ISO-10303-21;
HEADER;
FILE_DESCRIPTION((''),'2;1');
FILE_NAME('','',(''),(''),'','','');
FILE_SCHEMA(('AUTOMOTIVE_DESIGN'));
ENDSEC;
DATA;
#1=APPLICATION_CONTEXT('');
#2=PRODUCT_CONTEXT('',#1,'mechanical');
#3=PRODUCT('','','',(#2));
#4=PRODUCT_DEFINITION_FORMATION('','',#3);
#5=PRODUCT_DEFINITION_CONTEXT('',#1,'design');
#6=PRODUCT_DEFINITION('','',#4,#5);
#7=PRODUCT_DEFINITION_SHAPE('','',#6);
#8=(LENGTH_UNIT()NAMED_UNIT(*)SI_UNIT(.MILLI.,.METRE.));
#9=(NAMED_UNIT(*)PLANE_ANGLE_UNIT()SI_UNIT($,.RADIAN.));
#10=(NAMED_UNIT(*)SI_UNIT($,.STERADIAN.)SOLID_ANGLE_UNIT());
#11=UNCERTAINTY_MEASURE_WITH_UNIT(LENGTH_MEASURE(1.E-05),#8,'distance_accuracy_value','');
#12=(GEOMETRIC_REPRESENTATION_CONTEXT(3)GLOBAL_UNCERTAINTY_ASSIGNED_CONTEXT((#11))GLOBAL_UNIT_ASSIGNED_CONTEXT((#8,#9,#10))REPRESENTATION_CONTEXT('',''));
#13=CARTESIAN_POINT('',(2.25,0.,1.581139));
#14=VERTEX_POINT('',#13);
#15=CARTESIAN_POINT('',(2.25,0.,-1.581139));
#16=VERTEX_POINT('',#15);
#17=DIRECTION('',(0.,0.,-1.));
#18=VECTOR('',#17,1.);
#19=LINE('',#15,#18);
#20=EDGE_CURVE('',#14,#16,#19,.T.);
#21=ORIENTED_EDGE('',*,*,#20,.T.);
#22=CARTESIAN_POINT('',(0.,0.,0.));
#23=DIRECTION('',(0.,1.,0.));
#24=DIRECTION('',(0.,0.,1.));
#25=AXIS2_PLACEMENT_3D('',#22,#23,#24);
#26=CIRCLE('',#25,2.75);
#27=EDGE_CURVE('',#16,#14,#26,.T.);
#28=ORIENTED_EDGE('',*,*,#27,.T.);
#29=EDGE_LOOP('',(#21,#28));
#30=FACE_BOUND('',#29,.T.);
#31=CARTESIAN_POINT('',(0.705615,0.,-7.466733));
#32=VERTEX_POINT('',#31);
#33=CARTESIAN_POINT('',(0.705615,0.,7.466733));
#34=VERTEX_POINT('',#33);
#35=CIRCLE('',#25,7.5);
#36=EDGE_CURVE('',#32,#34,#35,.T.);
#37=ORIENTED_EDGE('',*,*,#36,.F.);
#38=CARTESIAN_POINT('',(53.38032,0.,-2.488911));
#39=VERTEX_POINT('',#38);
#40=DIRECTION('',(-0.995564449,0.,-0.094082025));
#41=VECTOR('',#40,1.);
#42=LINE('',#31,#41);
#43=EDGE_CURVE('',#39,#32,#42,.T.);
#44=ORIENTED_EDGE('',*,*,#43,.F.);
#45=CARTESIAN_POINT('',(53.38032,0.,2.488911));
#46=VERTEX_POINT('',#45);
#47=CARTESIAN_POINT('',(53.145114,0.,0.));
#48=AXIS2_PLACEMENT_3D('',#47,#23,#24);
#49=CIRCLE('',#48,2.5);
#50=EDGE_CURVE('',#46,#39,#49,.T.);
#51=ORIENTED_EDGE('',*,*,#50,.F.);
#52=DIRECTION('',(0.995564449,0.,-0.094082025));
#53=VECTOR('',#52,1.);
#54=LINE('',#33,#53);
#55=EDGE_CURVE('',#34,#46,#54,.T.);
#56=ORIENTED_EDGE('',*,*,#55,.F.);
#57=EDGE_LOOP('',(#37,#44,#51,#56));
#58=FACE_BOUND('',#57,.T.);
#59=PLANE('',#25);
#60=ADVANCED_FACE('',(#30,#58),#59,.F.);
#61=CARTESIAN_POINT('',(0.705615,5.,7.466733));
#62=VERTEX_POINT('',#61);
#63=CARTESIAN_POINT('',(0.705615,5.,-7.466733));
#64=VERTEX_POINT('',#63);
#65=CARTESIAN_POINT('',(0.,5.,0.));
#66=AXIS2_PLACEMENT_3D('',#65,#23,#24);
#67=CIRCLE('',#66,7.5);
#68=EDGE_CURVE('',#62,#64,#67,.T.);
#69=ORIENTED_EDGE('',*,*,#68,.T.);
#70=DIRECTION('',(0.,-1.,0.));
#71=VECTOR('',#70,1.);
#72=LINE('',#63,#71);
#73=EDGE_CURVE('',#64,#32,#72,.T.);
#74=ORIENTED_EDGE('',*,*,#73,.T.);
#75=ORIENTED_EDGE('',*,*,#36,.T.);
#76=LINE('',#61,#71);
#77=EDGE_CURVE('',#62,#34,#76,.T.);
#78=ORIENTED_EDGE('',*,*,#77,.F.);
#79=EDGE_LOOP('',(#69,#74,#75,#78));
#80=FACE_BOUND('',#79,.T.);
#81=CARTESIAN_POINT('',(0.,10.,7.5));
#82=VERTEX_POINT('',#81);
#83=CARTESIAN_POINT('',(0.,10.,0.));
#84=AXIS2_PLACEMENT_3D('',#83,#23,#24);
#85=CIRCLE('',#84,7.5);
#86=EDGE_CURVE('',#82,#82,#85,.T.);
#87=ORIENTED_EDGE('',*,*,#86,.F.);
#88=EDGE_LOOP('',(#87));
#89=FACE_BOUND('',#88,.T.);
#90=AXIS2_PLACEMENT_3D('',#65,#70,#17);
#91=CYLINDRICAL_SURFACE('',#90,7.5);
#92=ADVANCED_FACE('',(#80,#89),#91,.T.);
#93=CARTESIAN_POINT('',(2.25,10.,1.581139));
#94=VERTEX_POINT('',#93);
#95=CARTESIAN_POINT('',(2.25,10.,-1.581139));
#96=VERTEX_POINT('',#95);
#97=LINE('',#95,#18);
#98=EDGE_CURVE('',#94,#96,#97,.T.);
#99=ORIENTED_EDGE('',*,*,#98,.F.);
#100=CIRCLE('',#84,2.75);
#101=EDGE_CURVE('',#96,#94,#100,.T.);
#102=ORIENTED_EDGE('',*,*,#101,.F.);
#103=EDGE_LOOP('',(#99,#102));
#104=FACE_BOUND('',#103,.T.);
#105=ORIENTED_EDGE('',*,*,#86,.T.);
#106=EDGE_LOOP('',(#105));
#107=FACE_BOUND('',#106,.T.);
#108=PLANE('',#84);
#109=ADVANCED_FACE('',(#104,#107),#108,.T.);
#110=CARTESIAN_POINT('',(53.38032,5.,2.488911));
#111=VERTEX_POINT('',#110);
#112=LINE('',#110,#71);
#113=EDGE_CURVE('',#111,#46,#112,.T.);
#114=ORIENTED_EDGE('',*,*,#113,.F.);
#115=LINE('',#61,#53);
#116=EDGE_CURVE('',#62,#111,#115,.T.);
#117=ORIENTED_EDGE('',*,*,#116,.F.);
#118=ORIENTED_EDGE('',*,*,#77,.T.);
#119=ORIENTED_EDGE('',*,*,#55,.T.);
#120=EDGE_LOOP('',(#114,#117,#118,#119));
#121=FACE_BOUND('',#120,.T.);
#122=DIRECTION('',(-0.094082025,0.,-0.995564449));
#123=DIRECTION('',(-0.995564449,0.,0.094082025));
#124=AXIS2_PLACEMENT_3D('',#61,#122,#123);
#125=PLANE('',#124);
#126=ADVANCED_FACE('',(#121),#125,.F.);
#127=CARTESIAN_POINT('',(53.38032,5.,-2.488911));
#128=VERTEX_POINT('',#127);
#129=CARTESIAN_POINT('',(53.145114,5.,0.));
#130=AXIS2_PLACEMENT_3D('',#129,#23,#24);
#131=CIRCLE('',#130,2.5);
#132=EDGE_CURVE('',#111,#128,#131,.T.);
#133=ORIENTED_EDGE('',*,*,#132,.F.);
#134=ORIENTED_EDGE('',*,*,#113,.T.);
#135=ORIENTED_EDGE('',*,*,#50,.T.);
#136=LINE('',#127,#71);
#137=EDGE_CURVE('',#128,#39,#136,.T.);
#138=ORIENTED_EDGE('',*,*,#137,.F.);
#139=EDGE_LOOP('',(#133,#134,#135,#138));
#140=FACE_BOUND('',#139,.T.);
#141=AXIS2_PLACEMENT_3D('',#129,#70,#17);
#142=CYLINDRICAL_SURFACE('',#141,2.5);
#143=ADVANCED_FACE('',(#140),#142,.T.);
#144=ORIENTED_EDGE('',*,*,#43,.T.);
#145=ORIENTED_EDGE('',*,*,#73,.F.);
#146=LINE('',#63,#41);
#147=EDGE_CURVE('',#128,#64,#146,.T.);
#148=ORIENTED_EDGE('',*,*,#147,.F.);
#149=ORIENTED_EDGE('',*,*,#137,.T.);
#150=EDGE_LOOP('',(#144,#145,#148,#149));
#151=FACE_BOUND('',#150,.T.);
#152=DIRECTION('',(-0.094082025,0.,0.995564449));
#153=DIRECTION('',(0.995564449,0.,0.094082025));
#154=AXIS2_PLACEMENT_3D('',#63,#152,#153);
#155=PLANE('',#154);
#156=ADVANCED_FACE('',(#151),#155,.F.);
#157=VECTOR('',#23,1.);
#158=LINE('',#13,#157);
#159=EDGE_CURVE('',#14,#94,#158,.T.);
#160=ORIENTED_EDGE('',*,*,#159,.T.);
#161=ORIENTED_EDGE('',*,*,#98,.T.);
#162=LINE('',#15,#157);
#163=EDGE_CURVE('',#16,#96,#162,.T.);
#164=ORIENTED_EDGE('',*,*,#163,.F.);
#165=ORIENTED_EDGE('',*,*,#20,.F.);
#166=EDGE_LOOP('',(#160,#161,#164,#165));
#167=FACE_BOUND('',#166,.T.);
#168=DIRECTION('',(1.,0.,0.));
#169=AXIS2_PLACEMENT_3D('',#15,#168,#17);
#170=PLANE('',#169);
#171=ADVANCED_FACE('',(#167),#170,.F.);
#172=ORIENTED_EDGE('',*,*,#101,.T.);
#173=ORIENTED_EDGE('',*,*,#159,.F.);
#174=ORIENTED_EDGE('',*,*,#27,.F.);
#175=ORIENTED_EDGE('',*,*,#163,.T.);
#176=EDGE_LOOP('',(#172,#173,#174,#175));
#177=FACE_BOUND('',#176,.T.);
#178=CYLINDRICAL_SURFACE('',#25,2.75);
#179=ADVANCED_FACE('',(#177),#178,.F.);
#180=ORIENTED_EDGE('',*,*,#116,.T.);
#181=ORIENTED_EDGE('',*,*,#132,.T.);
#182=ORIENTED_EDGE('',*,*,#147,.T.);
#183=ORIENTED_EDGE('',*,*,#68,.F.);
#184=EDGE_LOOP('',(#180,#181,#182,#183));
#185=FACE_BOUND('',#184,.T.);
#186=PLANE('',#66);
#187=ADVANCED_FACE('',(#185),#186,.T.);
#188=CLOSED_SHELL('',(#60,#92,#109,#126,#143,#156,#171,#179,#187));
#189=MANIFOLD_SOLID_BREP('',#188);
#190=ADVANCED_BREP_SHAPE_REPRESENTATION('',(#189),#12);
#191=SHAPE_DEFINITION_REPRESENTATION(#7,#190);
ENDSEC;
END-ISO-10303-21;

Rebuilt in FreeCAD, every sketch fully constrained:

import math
import FreeCAD as App
import Part
import Sketcher

doc = App.newDocument("Part")
body = doc.addObject("PartDesign::Body", "Body")

sketch1 = doc.addObject("Sketcher::SketchObject", "Sketch")
body.addObject(sketch1)
sketch1.AttachmentSupport = (doc.XZ_Plane, [""])
sketch1.MapMode = "FlatFace"
sketch1.addGeometry(Part.LineSegment(App.Vector(53.4, -2.5, 0), App.Vector(0.7, -7.5, 0)), False)
sketch1.addGeometry(Part.ArcOfCircle(Part.Circle(App.Vector(0, 0, 0), App.Vector(0, 0, 1), 7.5), math.radians(85), math.radians(275)), False)
sketch1.addGeometry(Part.LineSegment(App.Vector(0.7, 7.5, 0), App.Vector(53.4, 2.5, 0)), False)
sketch1.addGeometry(Part.ArcOfCircle(Part.Circle(App.Vector(53.1, 0, 0), App.Vector(0, 0, 1), 2.5), math.radians(-85), math.radians(85)), False)
sketch1.addConstraint(Sketcher.Constraint("Tangent", 0, 2, 1, 2))
sketch1.addConstraint(Sketcher.Constraint("Tangent", 1, 1, 2, 1))
sketch1.addConstraint(Sketcher.Constraint("Tangent", 2, 2, 3, 2))
sketch1.addConstraint(Sketcher.Constraint("Tangent", 3, 1, 0, 1))
sketch1.addConstraint(Sketcher.Constraint("Coincident", 1, 3, -1, 1))
sketch1.addConstraint(Sketcher.Constraint("PointOnObject", 3, 3, -1))
sketch1.addConstraint(Sketcher.Constraint("Radius", 1, 7.5))
sketch1.addConstraint(Sketcher.Constraint("Radius", 3, 2.5))
sketch1.addConstraint(Sketcher.Constraint("DistanceX", 0, 2, 3, 3, 52.439499))
pad1 = doc.addObject("PartDesign::Pad", "Pad")
body.addObject(pad1)
pad1.Profile = sketch1
pad1.Length = 5
pad1.Reversed = True

sketch2 = doc.addObject("Sketcher::SketchObject", "Sketch001")
body.addObject(sketch2)
sketch2.AttachmentSupport = (doc.XZ_Plane, [""])
sketch2.MapMode = "FlatFace"
sketch2.AttachmentOffset = App.Placement(App.Vector(0, 0, -5), App.Rotation())
sketch2.addGeometry(Part.Circle(App.Vector(0, 0, 0), App.Vector(0, 0, 1), 8), False)
sketch2.addConstraint(Sketcher.Constraint("Coincident", 0, 3, -1, 1))
sketch2.addConstraint(Sketcher.Constraint("Diameter", 0, 15.0))
pad2 = doc.addObject("PartDesign::Pad", "Pad001")
body.addObject(pad2)
pad2.Profile = sketch2
pad2.Length = 5
pad2.Reversed = True

sketch3 = doc.addObject("Sketcher::SketchObject", "Sketch002")
body.addObject(sketch3)
sketch3.AttachmentSupport = (doc.XZ_Plane, [""])
sketch3.MapMode = "FlatFace"
sketch3.AttachmentOffset = App.Placement(App.Vector(0, 0, -10), App.Rotation())
sketch3.addGeometry(Part.LineSegment(App.Vector(2.2, 1.6, 0), App.Vector(2.2, -1.6, 0)), False)
sketch3.addGeometry(Part.ArcOfCircle(Part.Circle(App.Vector(0, 0, 0), App.Vector(0, 0, 1), 2.8), math.radians(35), math.radians(325)), False)
sketch3.addConstraint(Sketcher.Constraint("Coincident", 0, 1, 1, 1))
sketch3.addConstraint(Sketcher.Constraint("Coincident", 1, 2, 0, 2))
sketch3.addConstraint(Sketcher.Constraint("Vertical", 0))
sketch3.addConstraint(Sketcher.Constraint("Coincident", 1, 3, -1, 1))
sketch3.addConstraint(Sketcher.Constraint("Radius", 1, 2.75))
sketch3.addConstraint(Sketcher.Constraint("DistanceX", -1, 1, 0, 1, 2.25))
pocket1 = doc.addObject("PartDesign::Pocket", "Pocket")
body.addObject(pocket1)
pocket1.Profile = sketch3
pocket1.Type = "ThroughAll"
pocket1.Reversed = True

doc.recompute()
